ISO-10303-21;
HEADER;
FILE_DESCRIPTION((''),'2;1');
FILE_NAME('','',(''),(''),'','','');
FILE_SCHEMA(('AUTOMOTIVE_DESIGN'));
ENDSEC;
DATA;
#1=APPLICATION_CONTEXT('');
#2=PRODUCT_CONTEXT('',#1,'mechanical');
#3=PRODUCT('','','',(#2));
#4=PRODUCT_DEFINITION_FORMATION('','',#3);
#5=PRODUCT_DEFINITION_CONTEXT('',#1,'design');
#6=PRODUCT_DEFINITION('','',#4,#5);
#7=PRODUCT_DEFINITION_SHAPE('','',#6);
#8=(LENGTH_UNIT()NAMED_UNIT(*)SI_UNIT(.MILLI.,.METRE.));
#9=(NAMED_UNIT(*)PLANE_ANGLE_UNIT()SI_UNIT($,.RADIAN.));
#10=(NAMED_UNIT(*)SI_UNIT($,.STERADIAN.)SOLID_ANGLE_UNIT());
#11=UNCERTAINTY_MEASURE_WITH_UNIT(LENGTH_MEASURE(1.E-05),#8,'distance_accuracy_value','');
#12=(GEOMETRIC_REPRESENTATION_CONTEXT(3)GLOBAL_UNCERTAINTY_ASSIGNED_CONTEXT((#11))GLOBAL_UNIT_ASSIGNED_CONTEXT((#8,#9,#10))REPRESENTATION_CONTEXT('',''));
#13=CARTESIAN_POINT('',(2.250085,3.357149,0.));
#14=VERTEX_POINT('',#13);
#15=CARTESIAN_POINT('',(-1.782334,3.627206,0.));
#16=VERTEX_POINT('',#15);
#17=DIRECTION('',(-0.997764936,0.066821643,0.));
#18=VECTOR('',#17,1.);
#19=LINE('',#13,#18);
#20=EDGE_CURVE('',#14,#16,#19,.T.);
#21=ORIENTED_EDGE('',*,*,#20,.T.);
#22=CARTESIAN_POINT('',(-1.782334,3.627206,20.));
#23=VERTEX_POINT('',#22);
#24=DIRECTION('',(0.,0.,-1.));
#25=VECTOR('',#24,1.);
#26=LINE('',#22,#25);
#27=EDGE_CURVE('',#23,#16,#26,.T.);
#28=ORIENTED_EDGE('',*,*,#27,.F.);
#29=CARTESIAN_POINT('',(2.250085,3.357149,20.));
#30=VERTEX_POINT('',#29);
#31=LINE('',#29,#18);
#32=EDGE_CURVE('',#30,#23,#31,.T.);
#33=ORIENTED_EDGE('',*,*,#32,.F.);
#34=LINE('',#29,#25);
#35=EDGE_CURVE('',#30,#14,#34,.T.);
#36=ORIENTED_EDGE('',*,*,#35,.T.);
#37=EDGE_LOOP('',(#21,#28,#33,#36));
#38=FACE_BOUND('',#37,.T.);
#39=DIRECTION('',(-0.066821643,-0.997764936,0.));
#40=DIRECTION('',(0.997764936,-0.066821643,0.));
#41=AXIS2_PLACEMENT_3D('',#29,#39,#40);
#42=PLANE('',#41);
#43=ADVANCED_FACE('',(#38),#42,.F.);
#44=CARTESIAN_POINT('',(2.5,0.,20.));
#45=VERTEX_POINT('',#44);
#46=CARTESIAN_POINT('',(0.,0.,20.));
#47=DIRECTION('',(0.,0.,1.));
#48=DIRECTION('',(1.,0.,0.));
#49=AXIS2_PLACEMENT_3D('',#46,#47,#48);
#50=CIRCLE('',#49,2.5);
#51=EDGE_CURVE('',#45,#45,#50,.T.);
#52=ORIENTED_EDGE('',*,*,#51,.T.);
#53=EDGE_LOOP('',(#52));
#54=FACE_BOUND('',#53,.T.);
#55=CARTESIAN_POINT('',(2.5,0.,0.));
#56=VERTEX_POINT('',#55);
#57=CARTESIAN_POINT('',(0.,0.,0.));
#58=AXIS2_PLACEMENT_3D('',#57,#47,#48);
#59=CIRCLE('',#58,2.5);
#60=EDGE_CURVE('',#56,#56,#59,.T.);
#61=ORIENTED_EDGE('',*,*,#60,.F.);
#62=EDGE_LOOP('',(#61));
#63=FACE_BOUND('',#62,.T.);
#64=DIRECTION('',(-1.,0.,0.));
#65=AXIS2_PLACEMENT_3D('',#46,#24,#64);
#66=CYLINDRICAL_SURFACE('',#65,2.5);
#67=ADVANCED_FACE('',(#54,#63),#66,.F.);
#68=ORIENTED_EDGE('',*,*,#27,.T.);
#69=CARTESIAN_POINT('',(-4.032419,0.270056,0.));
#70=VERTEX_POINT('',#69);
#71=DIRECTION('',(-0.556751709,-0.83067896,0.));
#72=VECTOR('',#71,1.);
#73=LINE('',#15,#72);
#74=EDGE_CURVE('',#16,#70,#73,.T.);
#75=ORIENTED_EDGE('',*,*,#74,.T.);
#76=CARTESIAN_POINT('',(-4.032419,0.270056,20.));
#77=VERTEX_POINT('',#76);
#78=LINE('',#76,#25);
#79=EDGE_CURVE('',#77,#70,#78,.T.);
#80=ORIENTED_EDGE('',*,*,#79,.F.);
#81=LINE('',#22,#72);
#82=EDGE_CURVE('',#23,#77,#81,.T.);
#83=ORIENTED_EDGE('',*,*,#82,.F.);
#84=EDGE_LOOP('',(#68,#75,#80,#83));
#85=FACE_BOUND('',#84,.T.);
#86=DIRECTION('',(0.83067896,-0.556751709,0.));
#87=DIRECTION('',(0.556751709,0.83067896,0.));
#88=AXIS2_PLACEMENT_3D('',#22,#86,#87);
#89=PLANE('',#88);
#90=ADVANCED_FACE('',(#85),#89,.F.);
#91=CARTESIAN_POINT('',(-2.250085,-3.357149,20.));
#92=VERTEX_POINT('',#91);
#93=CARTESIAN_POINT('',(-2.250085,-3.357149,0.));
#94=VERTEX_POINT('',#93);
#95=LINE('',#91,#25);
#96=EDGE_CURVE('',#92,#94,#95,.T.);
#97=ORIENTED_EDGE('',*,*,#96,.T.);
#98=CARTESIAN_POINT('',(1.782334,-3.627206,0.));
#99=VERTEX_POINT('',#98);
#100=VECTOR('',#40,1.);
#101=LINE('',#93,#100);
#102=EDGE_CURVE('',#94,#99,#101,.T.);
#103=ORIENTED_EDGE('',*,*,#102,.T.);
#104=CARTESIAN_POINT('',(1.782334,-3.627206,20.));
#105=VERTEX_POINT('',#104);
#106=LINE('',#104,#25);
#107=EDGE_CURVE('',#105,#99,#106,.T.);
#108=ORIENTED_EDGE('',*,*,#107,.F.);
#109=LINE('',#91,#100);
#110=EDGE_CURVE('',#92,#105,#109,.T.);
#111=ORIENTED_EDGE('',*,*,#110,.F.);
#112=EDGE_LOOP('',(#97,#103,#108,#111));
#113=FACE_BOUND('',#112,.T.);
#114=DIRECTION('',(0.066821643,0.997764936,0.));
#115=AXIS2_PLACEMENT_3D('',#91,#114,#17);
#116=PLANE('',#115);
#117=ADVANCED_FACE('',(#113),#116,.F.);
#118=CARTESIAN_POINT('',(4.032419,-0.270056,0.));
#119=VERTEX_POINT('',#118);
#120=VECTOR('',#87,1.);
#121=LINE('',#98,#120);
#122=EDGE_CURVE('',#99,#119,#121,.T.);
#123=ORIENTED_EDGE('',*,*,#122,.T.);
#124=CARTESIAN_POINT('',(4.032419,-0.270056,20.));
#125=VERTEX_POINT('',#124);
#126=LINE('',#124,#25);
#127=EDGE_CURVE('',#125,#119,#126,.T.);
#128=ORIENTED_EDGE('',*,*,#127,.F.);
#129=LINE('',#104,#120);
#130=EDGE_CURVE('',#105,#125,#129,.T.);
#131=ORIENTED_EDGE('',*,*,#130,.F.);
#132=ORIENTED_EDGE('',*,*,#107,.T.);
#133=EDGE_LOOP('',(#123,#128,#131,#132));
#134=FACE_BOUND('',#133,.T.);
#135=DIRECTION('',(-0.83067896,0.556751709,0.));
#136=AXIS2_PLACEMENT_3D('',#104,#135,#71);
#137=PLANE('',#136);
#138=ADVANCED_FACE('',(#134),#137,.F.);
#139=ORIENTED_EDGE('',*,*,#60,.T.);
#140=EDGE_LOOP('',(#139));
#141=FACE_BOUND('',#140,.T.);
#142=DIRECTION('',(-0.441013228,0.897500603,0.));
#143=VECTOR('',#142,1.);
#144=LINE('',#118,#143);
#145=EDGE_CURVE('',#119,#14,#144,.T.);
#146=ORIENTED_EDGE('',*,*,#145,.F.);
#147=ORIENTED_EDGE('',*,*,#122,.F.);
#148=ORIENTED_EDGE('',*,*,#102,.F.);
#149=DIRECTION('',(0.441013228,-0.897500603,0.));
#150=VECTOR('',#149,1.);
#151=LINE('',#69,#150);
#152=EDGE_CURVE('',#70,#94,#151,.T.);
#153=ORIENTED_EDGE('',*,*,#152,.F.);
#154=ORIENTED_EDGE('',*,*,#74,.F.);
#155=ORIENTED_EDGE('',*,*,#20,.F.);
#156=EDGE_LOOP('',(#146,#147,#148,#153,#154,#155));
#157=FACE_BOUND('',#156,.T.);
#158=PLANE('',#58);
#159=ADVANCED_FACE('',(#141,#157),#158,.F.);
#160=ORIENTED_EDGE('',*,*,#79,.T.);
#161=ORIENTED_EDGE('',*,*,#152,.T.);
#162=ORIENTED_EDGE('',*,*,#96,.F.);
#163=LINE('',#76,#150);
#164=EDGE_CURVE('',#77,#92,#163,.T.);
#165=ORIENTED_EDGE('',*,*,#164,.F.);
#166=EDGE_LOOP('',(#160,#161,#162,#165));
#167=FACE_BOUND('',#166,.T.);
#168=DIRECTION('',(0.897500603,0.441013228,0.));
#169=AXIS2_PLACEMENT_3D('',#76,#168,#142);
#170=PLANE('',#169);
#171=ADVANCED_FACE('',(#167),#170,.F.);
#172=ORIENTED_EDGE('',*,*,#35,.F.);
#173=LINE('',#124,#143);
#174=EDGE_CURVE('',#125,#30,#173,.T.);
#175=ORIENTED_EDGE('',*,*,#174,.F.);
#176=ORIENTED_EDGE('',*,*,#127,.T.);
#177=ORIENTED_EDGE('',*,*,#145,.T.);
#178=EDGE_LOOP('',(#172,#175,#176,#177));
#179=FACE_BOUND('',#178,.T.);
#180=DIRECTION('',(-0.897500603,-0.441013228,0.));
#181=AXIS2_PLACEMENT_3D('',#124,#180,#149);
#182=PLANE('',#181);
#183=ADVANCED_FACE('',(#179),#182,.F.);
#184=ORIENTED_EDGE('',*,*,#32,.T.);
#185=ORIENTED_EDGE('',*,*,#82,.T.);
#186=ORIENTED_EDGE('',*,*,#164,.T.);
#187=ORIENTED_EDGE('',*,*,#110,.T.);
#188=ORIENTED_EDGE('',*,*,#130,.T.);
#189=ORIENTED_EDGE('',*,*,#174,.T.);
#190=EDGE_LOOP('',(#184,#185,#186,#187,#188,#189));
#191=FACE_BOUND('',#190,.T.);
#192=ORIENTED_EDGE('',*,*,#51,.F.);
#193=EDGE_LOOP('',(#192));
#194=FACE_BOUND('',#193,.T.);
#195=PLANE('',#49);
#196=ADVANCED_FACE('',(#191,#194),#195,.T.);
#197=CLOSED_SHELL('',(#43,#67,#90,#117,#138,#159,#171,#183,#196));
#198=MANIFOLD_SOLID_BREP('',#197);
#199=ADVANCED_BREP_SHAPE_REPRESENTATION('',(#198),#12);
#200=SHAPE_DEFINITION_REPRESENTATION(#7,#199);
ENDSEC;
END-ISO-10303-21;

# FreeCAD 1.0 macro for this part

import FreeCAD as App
import Part
import Sketcher
Q = App.Units.Quantity

doc = App.newDocument("Part")
body = doc.addObject("PartDesign::Body", "Body")

# Sketch on XY plane
sketch1 = body.newObject("Sketcher::SketchObject", "Sketch")
sketch1.AttachmentSupport = (doc.getObject("XY_Plane"), [""])
sketch1.MapMode = "FlatFace"
sketch1.addGeometry(Part.LineSegment(App.Vector(1.8, -3.6, 0), App.Vector(4, -0.3, 0)), False)
sketch1.addGeometry(Part.LineSegment(App.Vector(4, -0.3, 0), App.Vector(2.3, 3.4, 0)), False)
sketch1.addGeometry(Part.LineSegment(App.Vector(2.3, 3.4, 0), App.Vector(-1.8, 3.6, 0)), False)
sketch1.addGeometry(Part.LineSegment(App.Vector(-1.8, 3.6, 0), App.Vector(-4, 0.3, 0)), False)
sketch1.addGeometry(Part.LineSegment(App.Vector(-4, 0.3, 0), App.Vector(-2.3, -3.4, 0)), False)
sketch1.addGeometry(Part.LineSegment(App.Vector(-2.3, -3.4, 0), App.Vector(1.8, -3.6, 0)), False)
sketch1.addGeometry(Part.Circle(App.Vector(0, 0, 0), App.Vector(0, 0, 1), 2.5), False)
sketch1.addConstraint(Sketcher.Constraint("Coincident", 0, 2, 1, 1))
sketch1.addConstraint(Sketcher.Constraint("Coincident", 1, 2, 2, 1))
sketch1.addConstraint(Sketcher.Constraint("Coincident", 2, 2, 3, 1))
sketch1.addConstraint(Sketcher.Constraint("Coincident", 3, 2, 4, 1))
sketch1.addConstraint(Sketcher.Constraint("Coincident", 4, 2, 5, 1))
sketch1.addConstraint(Sketcher.Constraint("Coincident", 5, 2, 0, 1))
sketch1.addConstraint(Sketcher.Constraint("Coincident", 6, 3, -1, 1))
sketch1.addConstraint(Sketcher.Constraint("Symmetric", 0, 2, 3, 2, -1, 1))
sketch1.addConstraint(Sketcher.Constraint("Symmetric", 1, 2, 4, 2, -1, 1))
sketch1.addConstraint(Sketcher.Constraint("Symmetric", 2, 2, 5, 2, -1, 1))
sketch1.addConstraint(Sketcher.Constraint("Equal", 0, 1))
sketch1.addConstraint(Sketcher.Constraint("Equal", 1, 2))
sketch1.addConstraint(Sketcher.Constraint("Diameter", 6, Q("5 mm")))
sketch1.addConstraint(Sketcher.Constraint("DistanceY", 4, 2, 1, 2, Q("6.714298 mm")))
sketch1.addConstraint(Sketcher.Constraint("Distance", 0, Q("4.041452 mm")))
sketch1.addConstraint(Sketcher.Constraint("DistanceX", -1, 1, 0, 2, Q("4.032419 mm")))
sketch1.addConstraint(Sketcher.Constraint("DistanceX", 2, 2, 1, 2, Q("4.032419 mm")))
pad1 = body.newObject("PartDesign::Pad", "Pad")
pad1.Profile = sketch1
pad1.Length = 20

doc.recompute()
